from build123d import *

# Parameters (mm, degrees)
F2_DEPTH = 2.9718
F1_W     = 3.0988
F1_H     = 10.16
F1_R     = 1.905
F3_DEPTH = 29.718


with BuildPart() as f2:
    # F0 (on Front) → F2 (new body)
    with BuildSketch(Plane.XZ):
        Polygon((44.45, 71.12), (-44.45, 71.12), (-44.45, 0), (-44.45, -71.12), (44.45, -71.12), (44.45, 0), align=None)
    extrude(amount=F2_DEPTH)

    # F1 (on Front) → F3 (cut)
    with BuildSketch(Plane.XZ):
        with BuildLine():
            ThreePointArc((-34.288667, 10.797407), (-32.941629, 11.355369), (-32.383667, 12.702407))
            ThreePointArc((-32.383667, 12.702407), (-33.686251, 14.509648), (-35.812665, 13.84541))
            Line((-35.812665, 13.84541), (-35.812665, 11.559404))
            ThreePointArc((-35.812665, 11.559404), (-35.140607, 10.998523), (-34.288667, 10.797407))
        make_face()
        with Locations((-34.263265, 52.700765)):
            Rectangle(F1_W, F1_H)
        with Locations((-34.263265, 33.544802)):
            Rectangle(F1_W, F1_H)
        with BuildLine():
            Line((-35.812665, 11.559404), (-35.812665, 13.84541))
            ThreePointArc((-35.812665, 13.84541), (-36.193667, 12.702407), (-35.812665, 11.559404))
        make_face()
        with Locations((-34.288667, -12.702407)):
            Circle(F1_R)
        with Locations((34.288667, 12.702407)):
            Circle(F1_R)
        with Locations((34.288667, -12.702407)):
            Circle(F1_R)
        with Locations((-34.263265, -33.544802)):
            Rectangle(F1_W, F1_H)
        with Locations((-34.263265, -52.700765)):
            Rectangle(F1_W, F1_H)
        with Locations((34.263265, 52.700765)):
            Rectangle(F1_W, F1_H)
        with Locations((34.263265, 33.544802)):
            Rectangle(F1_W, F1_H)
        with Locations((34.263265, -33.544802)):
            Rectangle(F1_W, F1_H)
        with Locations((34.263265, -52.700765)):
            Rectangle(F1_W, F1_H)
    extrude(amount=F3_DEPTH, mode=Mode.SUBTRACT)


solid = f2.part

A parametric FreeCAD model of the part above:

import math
import FreeCAD as App
import Part
import Sketcher
Q = App.Units.Quantity

doc = App.newDocument("Part")
params = doc.addObject("Spreadsheet::Sheet", "Params")
for row, (alias, value) in enumerate([
    ("sketch1_width", "3.5 in"),
    ("sketch1_height", "5.6 in"),
    ("pad1_length", "0.117 in"),
    ("sketch2_diameter", "0.15 in"),
    ("sketch2_height", "0.4 in"),
    ("sketch2_width", "0.122 in"),
    ("pocket1_length", "1.17 in"),
], start=1):
    params.set(f"A{row}", alias)
    params.set(f"B{row}", "=" + value)
    params.setAlias(f"B{row}", alias)

body = doc.addObject("PartDesign::Body", "Body")

sketch1 = body.newObject("Sketcher::SketchObject", "Sketch")
sketch1.AttachmentSupport = (doc.getObject("XZ_Plane"), [""])
sketch1.MapMode = "FlatFace"
sketch1.addGeometry([
    Part.LineSegment(App.Vector(44, 71, 0), App.Vector(-44, 71, 0)),
    Part.LineSegment(App.Vector(-44, 71, 0), App.Vector(-44, -71, 0)),
    Part.LineSegment(App.Vector(-44, -71, 0), App.Vector(44, -71, 0)),
    Part.LineSegment(App.Vector(44, -71, 0), App.Vector(44, 71, 0)),
], False)
sketch1.addConstraint([
    Sketcher.Constraint("Coincident", 0, 2, 1, 1),
    Sketcher.Constraint("Coincident", 1, 2, 2, 1),
    Sketcher.Constraint("Coincident", 2, 2, 3, 1),
    Sketcher.Constraint("Coincident", 3, 2, 0, 1),
    Sketcher.Constraint("Horizontal", 0),
    Sketcher.Constraint("Vertical", 1),
    Sketcher.Constraint("Horizontal", 2),
    Sketcher.Constraint("Vertical", 3),
    Sketcher.Constraint("Symmetric", 0, 2, 2, 2, -1, 1),
    Sketcher.Constraint("DistanceX", 0, 2, 0, 1, Q("3.5 in")),
    Sketcher.Constraint("DistanceY", 1, 2, 1, 1, Q("5.6 in")),
])
sketch1.setExpression("Constraints[9]", "Params.sketch1_width")
sketch1.setExpression("Constraints[10]", "Params.sketch1_height")
pad1 = body.newObject("PartDesign::Pad", "Pad")
pad1.Profile = sketch1
pad1.setExpression("Length", "Params.pad1_length")

sketch2 = body.newObject("Sketcher::SketchObject", "Sketch001")
sketch2.AttachmentSupport = (doc.getObject("XZ_Plane"), [""])
sketch2.MapMode = "FlatFace"
sketch2.addGeometry([
    Part.ArcOfCircle(Part.Circle(App.Vector(-34.3, 12.7, 0), App.Vector(0, 0, 1), 1.9), math.radians(-90), math.radians(0)),
    Part.ArcOfCircle(Part.Circle(App.Vector(-34.3, 12.7, 0), App.Vector(0, 0, 1), 1.9), math.radians(0), math.radians(143)),
    Part.ArcOfCircle(Part.Circle(App.Vector(-34.3, 12.7, 0), App.Vector(0, 0, 1), 1.9), math.radians(143), math.radians(217)),
    Part.ArcOfCircle(Part.Circle(App.Vector(-34.3, 12.7, 0), App.Vector(0, 0, 1), 1.9), math.radians(-143), math.radians(-90)),
    Part.LineSegment(App.Vector(-35.8, 57.8, 0), App.Vector(-35.8, 47.6, 0)),
    Part.LineSegment(App.Vector(-35.8, 47.6, 0), App.Vector(-32.7, 47.6, 0)),
    Part.LineSegment(App.Vector(-32.7, 47.6, 0), App.Vector(-32.7, 57.8, 0)),
    Part.LineSegment(App.Vector(-32.7, 57.8, 0), App.Vector(-35.8, 57.8, 0)),
    Part.LineSegment(App.Vector(-35.8, 38.6, 0), App.Vector(-35.8, 28.5, 0)),
    Part.LineSegment(App.Vector(-35.8, 28.5, 0), App.Vector(-32.7, 28.5, 0)),
    Part.LineSegment(App.Vector(-32.7, 28.5, 0), App.Vector(-32.7, 38.6, 0)),
    Part.LineSegment(App.Vector(-32.7, 38.6, 0), App.Vector(-35.8, 38.6, 0)),
    Part.Circle(App.Vector(-34.3, -12.7, 0), App.Vector(0, 0, 1), 1.9),
    Part.Circle(App.Vector(34.3, 12.7, 0), App.Vector(0, 0, 1), 1.9),
    Part.Circle(App.Vector(34.3, -12.7, 0), App.Vector(0, 0, 1), 1.9),
    Part.LineSegment(App.Vector(-35.8, -28.5, 0), App.Vector(-35.8, -38.6, 0)),
    Part.LineSegment(App.Vector(-35.8, -38.6, 0), App.Vector(-32.7, -38.6, 0)),
    Part.LineSegment(App.Vector(-32.7, -38.6, 0), App.Vector(-32.7, -28.5, 0)),
    Part.LineSegment(App.Vector(-32.7, -28.5, 0), App.Vector(-35.8, -28.5, 0)),
    Part.LineSegment(App.Vector(-35.8, -47.6, 0), App.Vector(-35.8, -57.8, 0)),
    Part.LineSegment(App.Vector(-35.8, -57.8, 0), App.Vector(-32.7, -57.8, 0)),
    Part.LineSegment(App.Vector(-32.7, -57.8, 0), App.Vector(-32.7, -47.6, 0)),
    Part.LineSegment(App.Vector(-32.7, -47.6, 0), App.Vector(-35.8, -47.6, 0)),
    Part.LineSegment(App.Vector(32.7, 57.8, 0), App.Vector(32.7, 47.6, 0)),
    Part.LineSegment(App.Vector(32.7, 47.6, 0), App.Vector(35.8, 47.6, 0)),
    Part.LineSegment(App.Vector(35.8, 47.6, 0), App.Vector(35.8, 57.8, 0)),
    Part.LineSegment(App.Vector(35.8, 57.8, 0), App.Vector(32.7, 57.8, 0)),
    Part.LineSegment(App.Vector(32.7, 38.6, 0), App.Vector(32.7, 28.5, 0)),
    Part.LineSegment(App.Vector(32.7, 28.5, 0), App.Vector(35.8, 28.5, 0)),
    Part.LineSegment(App.Vector(35.8, 28.5, 0), App.Vector(35.8, 38.6, 0)),
    Part.LineSegment(App.Vector(35.8, 38.6, 0), App.Vector(32.7, 38.6, 0)),
    Part.LineSegment(App.Vector(32.7, -28.5, 0), App.Vector(32.7, -38.6, 0)),
    Part.LineSegment(App.Vector(32.7, -38.6, 0), App.Vector(35.8, -38.6, 0)),
    Part.LineSegment(App.Vector(35.8, -38.6, 0), App.Vector(35.8, -28.5, 0)),
    Part.LineSegment(App.Vector(35.8, -28.5, 0), App.Vector(32.7, -28.5, 0)),
    Part.LineSegment(App.Vector(32.7, -47.6, 0), App.Vector(32.7, -57.8, 0)),
    Part.LineSegment(App.Vector(32.7, -57.8, 0), App.Vector(35.8, -57.8, 0)),
    Part.LineSegment(App.Vector(35.8, -57.8, 0), App.Vector(35.8, -47.6, 0)),
    Part.LineSegment(App.Vector(35.8, -47.6, 0), App.Vector(32.7, -47.6, 0)),
], False)
sketch2.addConstraint([
    Sketcher.Constraint("Tangent", 0, 2, 1, 1),
    Sketcher.Constraint("Tangent", 1, 2, 2, 1),
    Sketcher.Constraint("Coincident", 2, 2, 3, 1),
    Sketcher.Constraint("Coincident", 3, 2, 0, 1),
    Sketcher.Constraint("Coincident", 4, 2, 5, 1),
    Sketcher.Constraint("Coincident", 5, 2, 6, 1),
    Sketcher.Constraint("Coincident", 6, 2, 7, 1),
    Sketcher.Constraint("Coincident", 7, 2, 4, 1),
    Sketcher.Constraint("Coincident", 8, 2, 9, 1),
    Sketcher.Constraint("Coincident", 9, 2, 10, 1),
    Sketcher.Constraint("Coincident", 10, 2, 11, 1),
    Sketcher.Constraint("Coincident", 11, 2, 8, 1),
    Sketcher.Constraint("Coincident", 15, 2, 16, 1),
    Sketcher.Constraint("Coincident", 16, 2, 17, 1),
    Sketcher.Constraint("Coincident", 17, 2, 18, 1),
    Sketcher.Constraint("Coincident", 18, 2, 15, 1),
    Sketcher.Constraint("Coincident", 19, 2, 20, 1),
    Sketcher.Constraint("Coincident", 20, 2, 21, 1),
    Sketcher.Constraint("Coincident", 21, 2, 22, 1),
    Sketcher.Constraint("Coincident", 22, 2, 19, 1),
    Sketcher.Constraint("Coincident", 23, 2, 24, 1),
    Sketcher.Constraint("Coincident", 24, 2, 25, 1),
    Sketcher.Constraint("Coincident", 25, 2, 26, 1),
    Sketcher.Constraint("Coincident", 26, 2, 23, 1),
    Sketcher.Constraint("Coincident", 27, 2, 28, 1),
    Sketcher.Constraint("Coincident", 28, 2, 29, 1),
    Sketcher.Constraint("Coincident", 29, 2, 30, 1),
    Sketcher.Constraint("Coincident", 30, 2, 27, 1),
    Sketcher.Constraint("Coincident", 31, 2, 32, 1),
    Sketcher.Constraint("Coincident", 32, 2, 33, 1),
    Sketcher.Constraint("Coincident", 33, 2, 34, 1),
    Sketcher.Constraint("Coincident", 34, 2, 31, 1),
    Sketcher.Constraint("Coincident", 35, 2, 36, 1),
    Sketcher.Constraint("Coincident", 36, 2, 37, 1),
    Sketcher.Constraint("Coincident", 37, 2, 38, 1),
    Sketcher.Constraint("Coincident", 38, 2, 35, 1),
    Sketcher.Constraint("Vertical", 4),
    Sketcher.Constraint("Horizontal", 5),
    Sketcher.Constraint("Vertical", 6),
    Sketcher.Constraint("Horizontal", 7),
    Sketcher.Constraint("Vertical", 8),
    Sketcher.Constraint("Horizontal", 9),
    Sketcher.Constraint("Vertical", 10),
    Sketcher.Constraint("Horizontal", 11),
    Sketcher.Constraint("Vertical", 15),
    Sketcher.Constraint("Horizontal", 16),
    Sketcher.Constraint("Vertical", 17),
    Sketcher.Constraint("Horizontal", 18),
    Sketcher.Constraint("Vertical", 19),
    Sketcher.Constraint("Horizontal", 20),
    Sketcher.Constraint("Vertical", 21),
    Sketcher.Constraint("Horizontal", 22),
    Sketcher.Constraint("Vertical", 23),
    Sketcher.Constraint("Horizontal", 24),
    Sketcher.Constraint("Vertical", 25),
    Sketcher.Constraint("Horizontal", 26),
    Sketcher.Constraint("Vertical", 27),
    Sketcher.Constraint("Horizontal", 28),
    Sketcher.Constraint("Vertical", 29),
    Sketcher.Constraint("Horizontal", 30),
    Sketcher.Constraint("Vertical", 31),
    Sketcher.Constraint("Horizontal", 32),
    Sketcher.Constraint("Vertical", 33),
    Sketcher.Constraint("Horizontal", 34),
    Sketcher.Constraint("Vertical", 35),
    Sketcher.Constraint("Horizontal", 36),
    Sketcher.Constraint("Vertical", 37),
    Sketcher.Constraint("Horizontal", 38),
    Sketcher.Constraint("Coincident", 2, 3, 0, 3),
    Sketcher.Constraint("Equal", 2, 12),
    Sketcher.Constraint("Equal", 12, 13),
    Sketcher.Constraint("Equal", 13, 14),
    Sketcher.Constraint("Symmetric", 12, 3, 13, 3, -1, 1),
    Sketcher.Constraint("Symmetric", 0, 3, 14, 3, -1, 1),
    Sketcher.Constraint("Symmetric", 21, 2, 23, 2, -1, 1),
    Sketcher.Constraint("Symmetric", 19, 2, 25, 2, -1, 1),
    Sketcher.Constraint("Symmetric", 17, 2, 27, 2, -1, 1),
    Sketcher.Constraint("Symmetric", 15, 2, 29, 2, -1, 1),
    Sketcher.Constraint("Symmetric", 10, 2, 31, 2, -1, 1),
    Sketcher.Constraint("Symmetric", 8, 2, 33, 2, -1, 1),
    Sketcher.Constraint("Symmetric", 6, 2, 35, 2, -1, 1),
    Sketcher.Constraint("Symmetric", 4, 2, 37, 2, -1, 1),
    Sketcher.Constraint("Symmetric", 0, 3, 13, 3, -2),
    Sketcher.Constraint("Symmetric", 5, 2, 23, 2, -2),
    Sketcher.Constraint("Symmetric", 7, 2, 25, 2, -2),
    Sketcher.Constraint("Symmetric", 9, 2, 27, 2, -2),
    Sketcher.Constraint("Symmetric", 11, 2, 29, 2, -2),
    Sketcher.Constraint("Horizontal", 13, 3, 0, 2),
    Sketcher.Constraint("Vertical", 1, 2, 2, 2),
    Sketcher.Constraint("Vertical", 12, 3, 3, 2),
    Sketcher.Constraint("Vertical", 2, 2, 4, 2),
    Sketcher.Constraint("Vertical", 7, 2, 8, 2),
    Sketcher.Constraint("Vertical", 6, 2, 9, 2),
    Sketcher.Constraint("Equal", 6, 8),
    Sketcher.Constraint("Diameter", 12, Q("0.15 in")),
    Sketcher.Constraint("DistanceY", 4, 2, 4, 1, Q("0.4 in")),
    Sketcher.Constraint("DistanceX", 5, 1, 5, 2, Q("0.122 in")),
    Sketcher.Constraint("DistanceX", 1, 2, 0, 3, Q("0.0599999 in")),
    Sketcher.Constraint("DistanceX", 1, 2, 3, 3, Q("0.06 in")),
    Sketcher.Constraint("DistanceY", -1, 1, 8, 2, 28.464802),
    Sketcher.Constraint("DistanceX", 0, 3, -1, 1, 34.288668),
    Sketcher.Constraint("DistanceY", -1, 1, 0, 3, 12.702408),
    Sketcher.Constraint("DistanceY", 3, 3, 4, 2, 34.918351),
])
sketch2.setExpression("Constraints[94]", "Params.sketch2_diameter")
sketch2.setExpression("Constraints[95]", "Params.sketch2_height")
sketch2.setExpression("Constraints[96]", "Params.sketch2_width")
pocket1 = body.newObject("PartDesign::Pocket", "Pocket")
pocket1.Profile = sketch2
pocket1.setExpression("Length", "Params.pocket1_length")
pocket1.Reversed = True

doc.recompute()
